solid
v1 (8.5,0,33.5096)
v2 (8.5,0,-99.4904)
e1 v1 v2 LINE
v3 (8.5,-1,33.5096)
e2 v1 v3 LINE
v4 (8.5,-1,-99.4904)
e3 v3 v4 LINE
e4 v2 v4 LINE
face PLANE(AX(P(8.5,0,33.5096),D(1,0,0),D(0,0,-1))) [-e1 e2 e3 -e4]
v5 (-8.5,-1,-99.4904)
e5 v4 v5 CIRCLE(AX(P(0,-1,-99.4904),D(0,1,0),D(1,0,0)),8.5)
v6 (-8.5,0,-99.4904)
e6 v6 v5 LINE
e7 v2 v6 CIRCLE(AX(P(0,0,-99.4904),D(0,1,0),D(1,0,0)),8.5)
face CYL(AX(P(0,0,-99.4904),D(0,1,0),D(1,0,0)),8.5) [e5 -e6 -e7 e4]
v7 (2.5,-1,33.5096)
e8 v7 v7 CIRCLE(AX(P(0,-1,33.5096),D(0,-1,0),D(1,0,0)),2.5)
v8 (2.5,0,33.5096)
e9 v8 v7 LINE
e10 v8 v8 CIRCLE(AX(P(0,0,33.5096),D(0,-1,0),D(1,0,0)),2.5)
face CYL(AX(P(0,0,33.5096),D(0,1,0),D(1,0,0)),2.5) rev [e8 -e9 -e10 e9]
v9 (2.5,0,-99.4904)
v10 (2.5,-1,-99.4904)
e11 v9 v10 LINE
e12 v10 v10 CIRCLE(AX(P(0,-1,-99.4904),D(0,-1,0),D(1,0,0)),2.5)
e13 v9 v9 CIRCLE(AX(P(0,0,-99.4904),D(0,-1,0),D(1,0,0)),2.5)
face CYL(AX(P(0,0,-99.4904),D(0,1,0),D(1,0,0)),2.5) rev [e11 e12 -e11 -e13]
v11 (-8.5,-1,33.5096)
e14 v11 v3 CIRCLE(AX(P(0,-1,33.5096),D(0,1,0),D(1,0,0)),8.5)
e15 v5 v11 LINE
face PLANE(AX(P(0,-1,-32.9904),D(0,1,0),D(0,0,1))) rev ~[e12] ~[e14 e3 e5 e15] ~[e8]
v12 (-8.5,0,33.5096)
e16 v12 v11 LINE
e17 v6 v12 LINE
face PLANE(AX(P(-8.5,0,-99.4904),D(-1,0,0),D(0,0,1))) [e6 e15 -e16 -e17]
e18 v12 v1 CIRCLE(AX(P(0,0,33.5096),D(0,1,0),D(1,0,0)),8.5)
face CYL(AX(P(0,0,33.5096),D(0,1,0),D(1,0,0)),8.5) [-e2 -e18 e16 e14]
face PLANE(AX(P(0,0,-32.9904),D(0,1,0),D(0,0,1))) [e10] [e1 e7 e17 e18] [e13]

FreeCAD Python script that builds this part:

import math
import FreeCAD as App
import Part
import Sketcher
Q = App.Units.Quantity

doc = App.newDocument("Part")
params = doc.addObject("Spreadsheet::Sheet", "Params")
for row, (alias, value) in enumerate([
    ("sketch1_diameter", "5 mm"),
    ("sketch1_radius", "8.5 mm"),
    ("sketch1_height", "133 mm"),
    ("pad1_length", "1 mm"),
], start=1):
    params.set(f"A{row}", alias)
    params.set(f"B{row}", "=" + value)
    params.setAlias(f"B{row}", alias)

body = doc.addObject("PartDesign::Body", "Body")

# Sketch on XZ plane
sketch1 = body.newObject("Sketcher::SketchObject", "Sketch")
sketch1.AttachmentSupport = (doc.getObject("XZ_Plane"), [""])
sketch1.MapMode = "FlatFace"
sketch1.addGeometry(Part.LineSegment(App.Vector(8.5, -99.5, 0), App.Vector(8.5, 33.5, 0)), False)
sketch1.addGeometry(Part.ArcOfCircle(Part.Circle(App.Vector(0, 33.5, 0), App.Vector(0, 0, 1), 8.5), math.radians(0), math.radians(180)), False)
sketch1.addGeometry(Part.LineSegment(App.Vector(-8.5, 33.5, 0), App.Vector(-8.5, -99.5, 0)), False)
sketch1.addGeometry(Part.ArcOfCircle(Part.Circle(App.Vector(0, -99.5, 0), App.Vector(0, 0, 1), 8.5), math.radians(180), math.radians(360)), False)
sketch1.addGeometry(Part.Circle(App.Vector(0, -99.5, 0), App.Vector(0, 0, 1), 2.5), False)
sketch1.addGeometry(Part.Circle(App.Vector(0, 33.5, 0), App.Vector(0, 0, 1), 2.5), False)
sketch1.addConstraint(Sketcher.Constraint("Tangent", 0, 2, 1, 1))
sketch1.addConstraint(Sketcher.Constraint("Tangent", 1, 2, 2, 1))
sketch1.addConstraint(Sketcher.Constraint("Tangent", 2, 2, 3, 1))
sketch1.addConstraint(Sketcher.Constraint("Tangent", 3, 2, 0, 1))
sketch1.addConstraint(Sketcher.Constraint("Vertical", 0))
sketch1.addConstraint(Sketcher.Constraint("Vertical", 2))
sketch1.addConstraint(Sketcher.Constraint("Coincident", 4, 3, 3, 3))
sketch1.addConstraint(Sketcher.Constraint("Coincident", 5, 3, 1, 3))
sketch1.addConstraint(Sketcher.Constraint("Equal", 4, 5))
sketch1.addConstraint(Sketcher.Constraint("PointOnObject", 1, 3, -2))
sketch1.addConstraint(Sketcher.Constraint("Diameter", 4, Q("5 mm")))
sketch1.addConstraint(Sketcher.Constraint("Radius", 1, Q("8.5 mm")))
sketch1.addConstraint(Sketcher.Constraint("DistanceY", 0, 1, 0, 2, Q("133 mm")))
sketch1.addConstraint(Sketcher.Constraint("DistanceY", -1, 1, 1, 3, Q("33.5096 mm")))
sketch1.setExpression("Constraints[10]", "Params.sketch1_diameter")
sketch1.setExpression("Constraints[11]", "Params.sketch1_radius")
sketch1.setExpression("Constraints[12]", "Params.sketch1_height")
pad1 = body.newObject("PartDesign::Pad", "Pad")
pad1.Profile = sketch1
pad1.setExpression("Length", "Params.pad1_length")

doc.recompute()
